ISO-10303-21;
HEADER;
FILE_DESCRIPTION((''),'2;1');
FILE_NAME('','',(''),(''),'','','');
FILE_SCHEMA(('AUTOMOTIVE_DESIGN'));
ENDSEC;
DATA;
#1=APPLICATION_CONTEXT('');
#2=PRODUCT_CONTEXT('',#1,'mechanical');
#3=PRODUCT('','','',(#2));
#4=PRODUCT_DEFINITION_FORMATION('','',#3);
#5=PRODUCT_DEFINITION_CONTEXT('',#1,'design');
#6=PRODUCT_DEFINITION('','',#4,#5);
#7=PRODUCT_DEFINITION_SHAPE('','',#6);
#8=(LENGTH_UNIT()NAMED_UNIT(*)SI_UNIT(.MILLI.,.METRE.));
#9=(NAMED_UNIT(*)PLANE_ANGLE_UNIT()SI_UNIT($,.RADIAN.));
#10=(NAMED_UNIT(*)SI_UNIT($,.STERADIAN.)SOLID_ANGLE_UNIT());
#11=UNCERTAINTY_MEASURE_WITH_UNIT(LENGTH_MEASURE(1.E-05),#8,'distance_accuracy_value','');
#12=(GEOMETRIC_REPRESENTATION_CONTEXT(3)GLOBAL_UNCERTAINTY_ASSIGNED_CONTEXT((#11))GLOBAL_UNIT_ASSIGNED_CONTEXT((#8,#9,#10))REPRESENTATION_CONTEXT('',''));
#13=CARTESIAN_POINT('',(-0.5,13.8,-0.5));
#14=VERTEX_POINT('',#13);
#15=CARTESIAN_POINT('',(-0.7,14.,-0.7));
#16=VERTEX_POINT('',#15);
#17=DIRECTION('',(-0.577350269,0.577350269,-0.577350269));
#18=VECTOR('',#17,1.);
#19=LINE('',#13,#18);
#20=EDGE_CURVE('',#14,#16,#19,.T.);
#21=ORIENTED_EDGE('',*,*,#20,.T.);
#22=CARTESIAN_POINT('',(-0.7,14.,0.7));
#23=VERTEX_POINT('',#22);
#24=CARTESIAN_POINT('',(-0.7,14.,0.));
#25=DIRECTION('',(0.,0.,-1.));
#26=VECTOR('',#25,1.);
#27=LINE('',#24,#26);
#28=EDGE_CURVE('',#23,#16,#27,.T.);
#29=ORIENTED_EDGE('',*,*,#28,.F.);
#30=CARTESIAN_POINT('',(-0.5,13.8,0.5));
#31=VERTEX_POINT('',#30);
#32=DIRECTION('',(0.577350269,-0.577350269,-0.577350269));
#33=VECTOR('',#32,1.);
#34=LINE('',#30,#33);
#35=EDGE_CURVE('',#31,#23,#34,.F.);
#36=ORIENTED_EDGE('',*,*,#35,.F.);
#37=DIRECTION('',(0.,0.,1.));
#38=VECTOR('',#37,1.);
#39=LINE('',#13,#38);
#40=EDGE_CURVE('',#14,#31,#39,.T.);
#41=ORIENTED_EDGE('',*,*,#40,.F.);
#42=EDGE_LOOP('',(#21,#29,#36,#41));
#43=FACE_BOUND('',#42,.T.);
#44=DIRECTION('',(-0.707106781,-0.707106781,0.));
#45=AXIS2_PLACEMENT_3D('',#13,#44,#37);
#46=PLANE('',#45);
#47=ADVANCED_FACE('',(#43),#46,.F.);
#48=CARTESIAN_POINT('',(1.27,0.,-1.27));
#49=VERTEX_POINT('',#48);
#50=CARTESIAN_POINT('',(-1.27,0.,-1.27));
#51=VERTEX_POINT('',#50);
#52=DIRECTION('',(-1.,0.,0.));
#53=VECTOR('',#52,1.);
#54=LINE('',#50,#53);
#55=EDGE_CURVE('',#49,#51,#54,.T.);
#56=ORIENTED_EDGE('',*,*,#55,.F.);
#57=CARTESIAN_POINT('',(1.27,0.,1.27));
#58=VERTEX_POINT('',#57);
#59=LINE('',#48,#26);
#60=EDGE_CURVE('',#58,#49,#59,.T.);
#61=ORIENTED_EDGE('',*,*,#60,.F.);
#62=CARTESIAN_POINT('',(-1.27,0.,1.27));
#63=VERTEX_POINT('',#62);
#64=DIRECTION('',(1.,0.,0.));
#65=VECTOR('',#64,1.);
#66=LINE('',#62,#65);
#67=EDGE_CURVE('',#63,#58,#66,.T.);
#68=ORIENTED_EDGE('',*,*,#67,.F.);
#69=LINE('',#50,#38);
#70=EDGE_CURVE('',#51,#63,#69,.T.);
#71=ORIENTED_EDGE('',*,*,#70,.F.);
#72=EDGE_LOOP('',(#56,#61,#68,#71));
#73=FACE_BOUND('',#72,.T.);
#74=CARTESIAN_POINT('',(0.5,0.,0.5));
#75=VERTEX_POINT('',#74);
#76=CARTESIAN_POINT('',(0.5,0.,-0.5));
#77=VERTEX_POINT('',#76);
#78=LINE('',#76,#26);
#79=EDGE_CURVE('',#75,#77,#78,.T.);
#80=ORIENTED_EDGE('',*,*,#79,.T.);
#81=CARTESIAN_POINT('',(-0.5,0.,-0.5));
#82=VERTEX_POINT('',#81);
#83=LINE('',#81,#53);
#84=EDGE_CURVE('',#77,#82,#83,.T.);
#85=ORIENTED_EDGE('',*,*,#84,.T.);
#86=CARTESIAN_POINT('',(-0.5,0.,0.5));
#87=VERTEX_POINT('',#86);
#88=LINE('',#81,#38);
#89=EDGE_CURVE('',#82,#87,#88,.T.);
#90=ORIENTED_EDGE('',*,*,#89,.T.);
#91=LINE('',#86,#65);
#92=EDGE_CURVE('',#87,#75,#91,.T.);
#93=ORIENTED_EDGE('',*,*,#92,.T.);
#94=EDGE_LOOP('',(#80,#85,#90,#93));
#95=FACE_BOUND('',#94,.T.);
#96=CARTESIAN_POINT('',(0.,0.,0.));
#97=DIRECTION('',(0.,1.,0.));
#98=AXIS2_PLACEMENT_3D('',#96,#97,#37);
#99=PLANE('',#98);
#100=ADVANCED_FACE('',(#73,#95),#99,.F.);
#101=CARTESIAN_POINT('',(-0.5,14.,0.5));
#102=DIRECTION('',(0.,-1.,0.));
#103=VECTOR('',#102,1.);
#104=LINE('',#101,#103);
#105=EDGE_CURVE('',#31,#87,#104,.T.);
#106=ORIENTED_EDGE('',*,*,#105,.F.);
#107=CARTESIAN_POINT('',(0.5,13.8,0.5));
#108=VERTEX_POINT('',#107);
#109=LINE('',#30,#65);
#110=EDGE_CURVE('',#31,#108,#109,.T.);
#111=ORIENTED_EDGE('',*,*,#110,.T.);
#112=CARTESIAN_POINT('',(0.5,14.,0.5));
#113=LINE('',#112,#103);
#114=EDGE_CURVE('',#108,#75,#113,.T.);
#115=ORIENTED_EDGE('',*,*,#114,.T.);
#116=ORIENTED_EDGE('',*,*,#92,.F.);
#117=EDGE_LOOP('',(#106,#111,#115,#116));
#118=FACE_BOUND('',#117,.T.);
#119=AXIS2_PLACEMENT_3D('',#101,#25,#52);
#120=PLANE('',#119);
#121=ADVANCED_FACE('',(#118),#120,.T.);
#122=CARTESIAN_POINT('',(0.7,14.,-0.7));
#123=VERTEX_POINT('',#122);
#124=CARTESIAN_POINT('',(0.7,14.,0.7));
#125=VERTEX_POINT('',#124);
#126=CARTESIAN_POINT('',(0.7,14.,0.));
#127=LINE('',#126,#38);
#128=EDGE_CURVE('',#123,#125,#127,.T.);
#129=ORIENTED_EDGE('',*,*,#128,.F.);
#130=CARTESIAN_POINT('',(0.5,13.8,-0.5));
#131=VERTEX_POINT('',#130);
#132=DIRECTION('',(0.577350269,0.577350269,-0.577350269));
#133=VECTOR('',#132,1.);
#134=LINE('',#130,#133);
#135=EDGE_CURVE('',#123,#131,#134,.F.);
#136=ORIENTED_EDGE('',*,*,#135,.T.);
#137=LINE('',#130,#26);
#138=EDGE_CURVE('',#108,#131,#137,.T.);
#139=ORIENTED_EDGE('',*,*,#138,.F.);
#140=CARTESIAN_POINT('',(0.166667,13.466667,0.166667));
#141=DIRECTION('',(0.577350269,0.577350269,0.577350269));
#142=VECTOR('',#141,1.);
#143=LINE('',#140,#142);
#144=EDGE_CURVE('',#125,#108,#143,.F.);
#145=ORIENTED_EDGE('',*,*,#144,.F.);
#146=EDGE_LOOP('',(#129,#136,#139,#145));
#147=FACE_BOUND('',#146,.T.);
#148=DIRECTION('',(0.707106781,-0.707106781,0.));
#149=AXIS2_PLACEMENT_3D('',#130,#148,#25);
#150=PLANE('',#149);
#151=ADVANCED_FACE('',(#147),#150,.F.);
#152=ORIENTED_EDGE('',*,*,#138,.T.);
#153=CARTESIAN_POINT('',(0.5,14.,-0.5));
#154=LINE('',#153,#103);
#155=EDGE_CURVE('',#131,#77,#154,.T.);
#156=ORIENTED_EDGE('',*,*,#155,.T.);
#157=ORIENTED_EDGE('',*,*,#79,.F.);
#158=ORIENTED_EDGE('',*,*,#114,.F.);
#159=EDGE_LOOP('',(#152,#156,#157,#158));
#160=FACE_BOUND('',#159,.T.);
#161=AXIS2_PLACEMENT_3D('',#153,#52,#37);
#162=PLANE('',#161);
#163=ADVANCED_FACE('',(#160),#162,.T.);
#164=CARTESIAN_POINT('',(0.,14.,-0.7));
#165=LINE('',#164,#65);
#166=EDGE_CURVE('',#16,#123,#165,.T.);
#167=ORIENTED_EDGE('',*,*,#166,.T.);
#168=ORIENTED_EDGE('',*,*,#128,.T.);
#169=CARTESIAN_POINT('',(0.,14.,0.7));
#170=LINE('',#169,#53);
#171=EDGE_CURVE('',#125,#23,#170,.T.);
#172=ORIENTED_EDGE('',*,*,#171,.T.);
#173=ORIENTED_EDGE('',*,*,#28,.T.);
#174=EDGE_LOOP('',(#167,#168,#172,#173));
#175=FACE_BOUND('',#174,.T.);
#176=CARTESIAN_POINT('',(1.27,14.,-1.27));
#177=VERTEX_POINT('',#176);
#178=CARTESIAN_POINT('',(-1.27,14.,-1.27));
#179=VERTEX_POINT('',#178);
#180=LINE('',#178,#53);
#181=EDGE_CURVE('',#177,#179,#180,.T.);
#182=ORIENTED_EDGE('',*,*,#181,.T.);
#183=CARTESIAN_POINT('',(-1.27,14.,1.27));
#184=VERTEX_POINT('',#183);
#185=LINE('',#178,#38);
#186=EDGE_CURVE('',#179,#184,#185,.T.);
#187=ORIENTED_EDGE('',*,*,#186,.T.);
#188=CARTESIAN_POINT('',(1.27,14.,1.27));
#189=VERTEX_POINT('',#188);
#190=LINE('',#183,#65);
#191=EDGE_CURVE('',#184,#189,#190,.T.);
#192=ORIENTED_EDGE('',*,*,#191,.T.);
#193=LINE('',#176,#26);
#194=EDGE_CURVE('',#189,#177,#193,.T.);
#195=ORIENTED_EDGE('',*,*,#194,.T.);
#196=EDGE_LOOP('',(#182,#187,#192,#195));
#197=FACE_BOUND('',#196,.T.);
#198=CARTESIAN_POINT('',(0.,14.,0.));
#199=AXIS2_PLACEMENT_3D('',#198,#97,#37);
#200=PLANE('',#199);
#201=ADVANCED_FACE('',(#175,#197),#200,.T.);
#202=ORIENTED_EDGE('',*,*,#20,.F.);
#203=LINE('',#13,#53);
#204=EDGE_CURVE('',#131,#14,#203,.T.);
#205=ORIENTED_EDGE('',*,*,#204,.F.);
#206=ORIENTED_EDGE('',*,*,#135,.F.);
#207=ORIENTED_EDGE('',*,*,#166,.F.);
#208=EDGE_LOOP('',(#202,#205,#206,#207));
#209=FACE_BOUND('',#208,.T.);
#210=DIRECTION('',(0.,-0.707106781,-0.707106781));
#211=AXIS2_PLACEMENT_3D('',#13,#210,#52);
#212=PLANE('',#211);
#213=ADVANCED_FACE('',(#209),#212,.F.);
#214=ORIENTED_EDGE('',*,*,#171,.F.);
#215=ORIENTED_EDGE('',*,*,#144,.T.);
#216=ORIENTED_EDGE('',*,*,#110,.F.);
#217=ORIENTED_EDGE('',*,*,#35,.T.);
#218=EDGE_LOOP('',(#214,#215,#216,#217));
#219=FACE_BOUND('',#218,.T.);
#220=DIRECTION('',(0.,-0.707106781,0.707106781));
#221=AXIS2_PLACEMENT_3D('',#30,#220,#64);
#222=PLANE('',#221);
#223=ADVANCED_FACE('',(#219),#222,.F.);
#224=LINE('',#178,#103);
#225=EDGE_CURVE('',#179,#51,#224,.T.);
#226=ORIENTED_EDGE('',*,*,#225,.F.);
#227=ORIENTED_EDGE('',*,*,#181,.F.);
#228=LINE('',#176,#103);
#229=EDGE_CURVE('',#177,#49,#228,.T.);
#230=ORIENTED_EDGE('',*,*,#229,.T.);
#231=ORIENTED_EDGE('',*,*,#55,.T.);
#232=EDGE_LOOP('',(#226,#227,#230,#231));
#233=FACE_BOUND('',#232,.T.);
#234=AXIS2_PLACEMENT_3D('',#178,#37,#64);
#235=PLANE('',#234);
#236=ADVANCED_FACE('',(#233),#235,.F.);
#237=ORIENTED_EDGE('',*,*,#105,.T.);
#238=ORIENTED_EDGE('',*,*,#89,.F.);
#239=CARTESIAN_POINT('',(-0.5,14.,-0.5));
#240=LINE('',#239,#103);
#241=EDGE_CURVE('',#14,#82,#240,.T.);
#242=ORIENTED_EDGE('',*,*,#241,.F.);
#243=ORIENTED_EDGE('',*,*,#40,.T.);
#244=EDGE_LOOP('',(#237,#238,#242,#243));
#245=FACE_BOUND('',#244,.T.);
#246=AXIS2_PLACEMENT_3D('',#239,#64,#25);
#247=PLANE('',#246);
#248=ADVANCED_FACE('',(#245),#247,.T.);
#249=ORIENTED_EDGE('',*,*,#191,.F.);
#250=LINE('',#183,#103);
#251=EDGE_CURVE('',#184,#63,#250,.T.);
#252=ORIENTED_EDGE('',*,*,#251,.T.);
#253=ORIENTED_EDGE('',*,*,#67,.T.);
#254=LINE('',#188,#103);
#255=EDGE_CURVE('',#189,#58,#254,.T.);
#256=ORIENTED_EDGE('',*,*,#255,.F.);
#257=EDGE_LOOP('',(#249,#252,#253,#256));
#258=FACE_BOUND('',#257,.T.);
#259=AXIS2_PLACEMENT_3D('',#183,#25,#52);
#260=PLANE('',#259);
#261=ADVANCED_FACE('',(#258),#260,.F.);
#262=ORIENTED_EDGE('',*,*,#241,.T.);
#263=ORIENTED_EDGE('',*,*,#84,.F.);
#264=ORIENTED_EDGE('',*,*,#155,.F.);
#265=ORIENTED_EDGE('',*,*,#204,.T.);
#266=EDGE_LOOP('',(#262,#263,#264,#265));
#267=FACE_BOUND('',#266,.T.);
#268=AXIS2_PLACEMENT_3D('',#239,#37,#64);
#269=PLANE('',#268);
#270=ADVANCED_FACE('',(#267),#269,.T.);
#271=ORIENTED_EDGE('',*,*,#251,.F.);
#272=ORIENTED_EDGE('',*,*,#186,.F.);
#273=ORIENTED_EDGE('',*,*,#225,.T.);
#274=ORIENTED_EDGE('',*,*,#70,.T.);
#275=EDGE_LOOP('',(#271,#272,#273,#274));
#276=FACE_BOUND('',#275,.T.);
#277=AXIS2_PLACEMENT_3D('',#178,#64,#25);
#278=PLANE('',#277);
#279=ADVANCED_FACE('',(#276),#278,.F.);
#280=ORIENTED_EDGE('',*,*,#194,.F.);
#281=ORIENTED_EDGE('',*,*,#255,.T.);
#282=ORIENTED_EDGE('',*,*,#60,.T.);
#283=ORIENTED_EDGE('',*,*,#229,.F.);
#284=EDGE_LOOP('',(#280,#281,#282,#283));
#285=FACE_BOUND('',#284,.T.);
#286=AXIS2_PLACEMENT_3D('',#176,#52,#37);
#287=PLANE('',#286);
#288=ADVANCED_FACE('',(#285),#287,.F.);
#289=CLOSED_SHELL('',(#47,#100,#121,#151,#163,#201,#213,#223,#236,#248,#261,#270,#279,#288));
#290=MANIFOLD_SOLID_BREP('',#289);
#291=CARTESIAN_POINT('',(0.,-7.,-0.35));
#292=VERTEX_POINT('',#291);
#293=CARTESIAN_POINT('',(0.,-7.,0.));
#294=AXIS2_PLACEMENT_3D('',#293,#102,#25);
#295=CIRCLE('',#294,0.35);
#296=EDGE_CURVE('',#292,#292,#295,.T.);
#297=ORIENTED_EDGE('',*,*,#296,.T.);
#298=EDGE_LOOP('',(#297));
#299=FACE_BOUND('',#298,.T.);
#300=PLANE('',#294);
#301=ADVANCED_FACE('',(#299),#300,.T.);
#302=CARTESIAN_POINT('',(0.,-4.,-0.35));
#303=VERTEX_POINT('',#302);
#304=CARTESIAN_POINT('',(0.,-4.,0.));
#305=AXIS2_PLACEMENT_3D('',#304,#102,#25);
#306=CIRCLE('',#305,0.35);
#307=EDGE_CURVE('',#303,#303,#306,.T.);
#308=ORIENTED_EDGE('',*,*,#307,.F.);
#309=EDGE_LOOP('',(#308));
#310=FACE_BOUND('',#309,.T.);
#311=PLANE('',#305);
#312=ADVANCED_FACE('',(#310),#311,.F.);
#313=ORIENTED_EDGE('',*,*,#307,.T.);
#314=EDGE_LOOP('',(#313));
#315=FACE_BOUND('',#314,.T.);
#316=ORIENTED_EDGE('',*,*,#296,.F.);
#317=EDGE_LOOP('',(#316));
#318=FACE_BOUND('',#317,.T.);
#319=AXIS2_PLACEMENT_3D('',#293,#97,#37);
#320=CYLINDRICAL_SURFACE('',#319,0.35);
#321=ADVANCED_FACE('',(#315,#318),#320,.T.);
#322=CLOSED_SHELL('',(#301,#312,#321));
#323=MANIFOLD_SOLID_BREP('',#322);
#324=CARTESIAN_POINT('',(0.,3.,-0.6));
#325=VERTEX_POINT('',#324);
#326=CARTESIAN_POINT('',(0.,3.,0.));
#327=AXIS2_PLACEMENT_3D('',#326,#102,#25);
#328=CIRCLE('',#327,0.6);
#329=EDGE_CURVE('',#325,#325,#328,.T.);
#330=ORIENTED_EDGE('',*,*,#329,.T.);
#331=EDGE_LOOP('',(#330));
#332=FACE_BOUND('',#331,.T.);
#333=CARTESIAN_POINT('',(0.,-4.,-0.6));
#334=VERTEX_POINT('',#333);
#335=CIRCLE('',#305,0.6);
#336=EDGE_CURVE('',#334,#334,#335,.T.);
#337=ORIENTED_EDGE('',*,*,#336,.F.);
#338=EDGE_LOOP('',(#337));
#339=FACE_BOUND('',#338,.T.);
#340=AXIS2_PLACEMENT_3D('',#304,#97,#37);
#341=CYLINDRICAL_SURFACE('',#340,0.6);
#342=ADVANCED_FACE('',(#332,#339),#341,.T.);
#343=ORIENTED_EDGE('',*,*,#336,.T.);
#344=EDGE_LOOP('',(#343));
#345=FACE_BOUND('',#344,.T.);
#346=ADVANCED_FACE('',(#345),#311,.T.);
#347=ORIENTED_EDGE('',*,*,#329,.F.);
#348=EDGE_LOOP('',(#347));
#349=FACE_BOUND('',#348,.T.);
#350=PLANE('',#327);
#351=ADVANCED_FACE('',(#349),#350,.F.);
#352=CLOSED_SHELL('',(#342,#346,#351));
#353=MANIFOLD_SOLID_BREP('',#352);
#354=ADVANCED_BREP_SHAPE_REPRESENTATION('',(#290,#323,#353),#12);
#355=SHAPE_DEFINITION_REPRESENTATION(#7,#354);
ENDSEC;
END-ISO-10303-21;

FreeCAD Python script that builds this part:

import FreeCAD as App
import Part
import Sketcher
Q = App.Units.Quantity


def edges_at(feature, points):
    """Names of the edges that pass closest to the given points."""
    edges = feature.Shape.Edges
    near = lambda p: min(range(len(edges)), key=lambda i: edges[i].distToShape(Part.Vertex(*p))[0])
    return sorted({f"Edge{near(p) + 1}" for p in points})


def add_polygon(sketch, points):
    """Adds a closed chain of lines whose ends are joined by coincident constraints."""
    first, n = sketch.GeometryCount, len(points)
    for a, b in zip(points, points[1:] + points[:1]):
        sketch.addGeometry(Part.LineSegment(App.Vector(*a, 0), App.Vector(*b, 0)), False)
    for i in range(n):
        sketch.addConstraint(Sketcher.Constraint("Coincident", first + i, 2, first + (i + 1) % n, 1))

doc = App.newDocument("Part")
params = doc.addObject("Spreadsheet::Sheet", "Params")
for row, (alias, value) in enumerate([
    ("sketch1_width", "1 mm"),
    ("sketch1_width2", "2.54 mm"),
    ("pad1_length", "14 mm"),
    ("chamfer_size", "0.2 mm"),
    ("sketch2_diameter", "1.2 mm"),
    ("pad2_length", "7 mm"),
    ("sketch3_diameter", "0.7 mm"),
    ("pad3_length", "3 mm"),
], start=1):
    params.set(f"A{row}", alias)
    params.set(f"B{row}", "=" + value)
    params.setAlias(f"B{row}", alias)

body = doc.addObject("PartDesign::Body", "Body")

sketch1 = body.newObject("Sketcher::SketchObject", "Sketch")
sketch1.AttachmentSupport = (doc.getObject("XZ_Plane"), [""])
sketch1.MapMode = "FlatFace"
add_polygon(sketch1, [(-1.3, -1.3), (-1.3, 1.3), (1.3, 1.3), (1.3, -1.3)])
add_polygon(sketch1, [(0.5, 0.5), (-0.5, 0.5), (-0.5, -0.5), (0.5, -0.5)])
sketch1.addConstraint([
    Sketcher.Constraint("Vertical", 0),
    Sketcher.Constraint("Horizontal", 1),
    Sketcher.Constraint("Vertical", 2),
    Sketcher.Constraint("Horizontal", 3),
    Sketcher.Constraint("Horizontal", 4),
    Sketcher.Constraint("Vertical", 5),
    Sketcher.Constraint("Horizontal", 6),
    Sketcher.Constraint("Vertical", 7),
    Sketcher.Constraint("Symmetric", 0, 2, 2, 2, -1, 1),
    Sketcher.Constraint("Symmetric", 4, 2, 6, 2, -1, 1),
    Sketcher.Constraint("Equal", 3, 0),
    Sketcher.Constraint("Equal", 6, 5),
    Sketcher.Constraint("DistanceX", 4, 2, 4, 1, Q("1 mm")),
    Sketcher.Constraint("DistanceX", 1, 1, 1, 2, Q("2.54 mm")),
])
sketch1.setExpression("Constraints[20]", "Params.sketch1_width")
sketch1.setExpression("Constraints[21]", "Params.sketch1_width2")
pad1 = body.newObject("PartDesign::Pad", "Pad")
pad1.Profile = sketch1
pad1.setExpression("Length", "Params.pad1_length")
pad1.Reversed = True
doc.recompute()

chamfer = body.newObject("PartDesign::Chamfer", "Chamfer")
chamfer.Base = (pad1, edges_at(pad1, [
    (0.5, 14, 0),
    (0, 14, -0.5),
    (-0.5, 14, 0),
    (0, 14, 0.5),
]))
chamfer.setExpression("Size", "Params.chamfer_size")
body2 = doc.addObject("PartDesign::Body", "Body001")

sketch2 = body2.newObject("Sketcher::SketchObject", "Sketch001")
sketch2.AttachmentSupport = (doc.getObject("XZ_Plane001"), [""])
sketch2.MapMode = "FlatFace"
sketch2.AttachmentOffset = App.Placement(App.Vector(0, 0, -3), App.Rotation())
sketch2.addGeometry(Part.Circle(App.Vector(0, 0, 0), App.Vector(0, 0, 1), 0.6), False)
sketch2.addConstraint([
    Sketcher.Constraint("Coincident", 0, 3, -1, 1),
    Sketcher.Constraint("Diameter", 0, Q("1.2 mm")),
])
sketch2.setExpression("Constraints[1]", "Params.sketch2_diameter")
pad2 = body2.newObject("PartDesign::Pad", "Pad001")
pad2.Profile = sketch2
pad2.setExpression("Length", "Params.pad2_length")
body3 = doc.addObject("PartDesign::Body", "Body002")

sketch3 = body3.newObject("Sketcher::SketchObject", "Sketch002")
sketch3.AttachmentSupport = (doc.getObject("XZ_Plane002"), [""])
sketch3.MapMode = "FlatFace"
sketch3.AttachmentOffset = App.Placement(App.Vector(0, 0, 4), App.Rotation())
sketch3.addGeometry(Part.Circle(App.Vector(0, 0, 0), App.Vector(0, 0, 1), 0.35), False)
sketch3.addConstraint([
    Sketcher.Constraint("Coincident", 0, 3, -1, 1),
    Sketcher.Constraint("Diameter", 0, Q("0.7 mm")),
])
sketch3.setExpression("Constraints[1]", "Params.sketch3_diameter")
pad3 = body3.newObject("PartDesign::Pad", "Pad002")
pad3.Profile = sketch3
pad3.setExpression("Length", "Params.pad3_length")

doc.recompute()
